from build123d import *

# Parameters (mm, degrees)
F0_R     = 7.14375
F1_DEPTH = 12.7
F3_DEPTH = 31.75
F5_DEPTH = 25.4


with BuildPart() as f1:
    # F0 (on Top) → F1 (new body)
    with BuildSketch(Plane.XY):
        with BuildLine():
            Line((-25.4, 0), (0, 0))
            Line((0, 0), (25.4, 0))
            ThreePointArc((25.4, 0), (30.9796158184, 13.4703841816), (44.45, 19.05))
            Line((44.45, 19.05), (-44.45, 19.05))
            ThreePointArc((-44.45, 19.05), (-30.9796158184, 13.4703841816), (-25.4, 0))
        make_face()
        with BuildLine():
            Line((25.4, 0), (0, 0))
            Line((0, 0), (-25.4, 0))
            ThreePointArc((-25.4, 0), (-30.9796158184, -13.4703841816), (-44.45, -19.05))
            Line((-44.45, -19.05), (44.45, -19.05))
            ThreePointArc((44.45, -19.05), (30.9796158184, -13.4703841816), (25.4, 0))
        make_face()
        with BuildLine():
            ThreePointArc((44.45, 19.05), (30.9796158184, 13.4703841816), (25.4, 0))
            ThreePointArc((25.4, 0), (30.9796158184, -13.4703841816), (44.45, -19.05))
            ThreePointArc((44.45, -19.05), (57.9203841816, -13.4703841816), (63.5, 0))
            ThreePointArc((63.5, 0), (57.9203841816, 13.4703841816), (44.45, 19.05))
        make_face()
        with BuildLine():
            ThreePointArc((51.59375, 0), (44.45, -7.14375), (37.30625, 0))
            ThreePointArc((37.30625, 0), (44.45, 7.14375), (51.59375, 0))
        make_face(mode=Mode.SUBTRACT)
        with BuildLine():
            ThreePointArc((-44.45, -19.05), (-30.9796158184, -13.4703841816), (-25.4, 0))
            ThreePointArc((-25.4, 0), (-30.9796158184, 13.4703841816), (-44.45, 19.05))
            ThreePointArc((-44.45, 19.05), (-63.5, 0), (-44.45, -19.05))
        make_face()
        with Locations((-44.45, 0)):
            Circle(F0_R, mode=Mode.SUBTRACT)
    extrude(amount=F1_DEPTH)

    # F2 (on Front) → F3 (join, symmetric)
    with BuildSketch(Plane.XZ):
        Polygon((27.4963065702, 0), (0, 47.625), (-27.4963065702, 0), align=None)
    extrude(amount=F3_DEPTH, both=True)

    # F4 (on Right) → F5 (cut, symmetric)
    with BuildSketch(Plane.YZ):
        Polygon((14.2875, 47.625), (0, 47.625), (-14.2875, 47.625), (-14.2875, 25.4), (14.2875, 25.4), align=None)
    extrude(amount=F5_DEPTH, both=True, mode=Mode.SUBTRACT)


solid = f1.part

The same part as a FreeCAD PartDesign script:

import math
import FreeCAD as App
import Part
import Sketcher

V = App.Vector
Q = App.Units.Quantity

doc = App.newDocument("Part")
params = doc.addObject("Spreadsheet::Sheet", "Params")
for row, (alias, value) in enumerate([
    ("sketch1_radius", "0.75 in"),
    ("sketch1_diameter", "0.5625 in"),
    ("sketch1_width", "3.5 in"),
    ("pad1_length", "0.5 in"),
    ("pad2_length", "2.5 in"),
    ("sketch3_width", "1.125 in"),
    ("sketch3_height", "0.875 in"),
    ("pocket1_length", "2 in"),
], start=1):
    params.set(f"A{row}", alias)
    params.set(f"B{row}", "=" + value)
    params.setAlias(f"B{row}", alias)

body = doc.addObject("PartDesign::Body", "Body")

# Sketch on XY plane
sketch1 = body.newObject("Sketcher::SketchObject", "Sketch")
sketch1.AttachmentSupport = (doc.getObject("XY_Plane"), [""])
sketch1.MapMode = "FlatFace"
sketch1.addGeometry([
    Part.LineSegment(V(44.45, 19.05, 0), V(-44.45, 19.05, 0)),  # 0
    Part.ArcOfCircle(Part.Circle(V(-44.45, 0, 0), V(0, 0, 1), 19.05), math.radians(90), math.radians(270)),  # 1
    Part.LineSegment(V(-44.45, -19.05, 0), V(44.45, -19.05, 0)),  # 2
    Part.ArcOfCircle(Part.Circle(V(44.45, 0, 0), V(0, 0, 1), 19.05), math.radians(-90), math.radians(0)),  # 3
    Part.ArcOfCircle(Part.Circle(V(44.45, 0, 0), V(0, 0, 1), 19.05), math.radians(0), math.radians(90)),  # 4
    Part.Circle(V(-44.45, 0, 0), V(0, 0, 1), 7.14375),  # 5
    Part.Circle(V(44.45, 0, 0), V(0, 0, 1), 7.14375),  # 6
], False)
sketch1.addConstraint([
    Sketcher.Constraint("Tangent", 0, 2, 1, 1),
    Sketcher.Constraint("Tangent", 1, 2, 2, 1),
    Sketcher.Constraint("Tangent", 2, 2, 3, 1),
    Sketcher.Constraint("Tangent", 3, 2, 4, 1),
    Sketcher.Constraint("Tangent", 4, 2, 0, 1),
    Sketcher.Constraint("Horizontal", 0),
    Sketcher.Constraint("Horizontal", 2),
    Sketcher.Constraint("Coincident", 5, 3, 1, 3),
    Sketcher.Constraint("Coincident", 6, 3, 3, 3),
    Sketcher.Constraint("Equal", 1, 3),
    Sketcher.Constraint("Equal", 5, 6),
    Sketcher.Constraint("Symmetric", 1, 3, 3, 3, -1, 1),
    Sketcher.Constraint("PointOnObject", 3, 2, -1),
    Sketcher.Constraint("Radius", 1, Q("0.75 in")),
    Sketcher.Constraint("Diameter", 5, Q("0.5625 in")),
    Sketcher.Constraint("DistanceX", 0, 2, 0, 1, Q("3.5 in")),
])
sketch1.setExpression("Constraints[13]", "Params.sketch1_radius")
sketch1.setExpression("Constraints[14]", "Params.sketch1_diameter")
sketch1.setExpression("Constraints[15]", "Params.sketch1_width")
pad1 = body.newObject("PartDesign::Pad", "Pad")
pad1.Profile = sketch1
pad1.setExpression("Length", "Params.pad1_length")

# Sketch on XZ plane
sketch2 = body.newObject("Sketcher::SketchObject", "Sketch001")
sketch2.AttachmentSupport = (doc.getObject("XZ_Plane"), [""])
sketch2.MapMode = "FlatFace"
sketch2.addGeometry([
    Part.LineSegment(V(27.496307, 0, 0), V(0, 47.625, 0)),
    Part.LineSegment(V(0, 47.625, 0), V(-27.496307, 0, 0)),
    Part.LineSegment(V(-27.496307, 0, 0), V(27.496307, 0, 0)),
], False)
sketch2.addConstraint([
    Sketcher.Constraint("Coincident", 0, 2, 1, 1),
    Sketcher.Constraint("Coincident", 1, 2, 2, 1),
    Sketcher.Constraint("Coincident", 2, 2, 0, 1),
    Sketcher.Constraint("Horizontal", 2),
    Sketcher.Constraint("Symmetric", 1, 2, 2, 2, -1, 1),
    Sketcher.Constraint("PointOnObject", 0, 2, -2),
    Sketcher.Constraint("Angle", 0, Q("120 deg")),
    Sketcher.Constraint("DistanceY", -1, 1, 0, 2, Q("1.875 in")),
])
pad2 = body.newObject("PartDesign::Pad", "Pad001")
pad2.Profile = sketch2
pad2.setExpression("Length", "Params.pad2_length")
pad2.Midplane = True

# Sketch on YZ plane
sketch3 = body.newObject("Sketcher::SketchObject", "Sketch002")
sketch3.AttachmentSupport = (doc.getObject("YZ_Plane"), [""])
sketch3.MapMode = "FlatFace"
sketch3.addGeometry([
    Part.LineSegment(V(14.2875, 47.625, 0), V(-14.2875, 47.625, 0)),
    Part.LineSegment(V(-14.2875, 47.625, 0), V(-14.2875, 25.4, 0)),
    Part.LineSegment(V(-14.2875, 25.4, 0), V(14.2875, 25.4, 0)),
    Part.LineSegment(V(14.2875, 25.4, 0), V(14.2875, 47.625, 0)),
], False)
sketch3.addConstraint([
    Sketcher.Constraint("Coincident", 0, 2, 1, 1),
    Sketcher.Constraint("Coincident", 1, 2, 2, 1),
    Sketcher.Constraint("Coincident", 2, 2, 3, 1),
    Sketcher.Constraint("Coincident", 3, 2, 0, 1),
    Sketcher.Constraint("Horizontal", 0),
    Sketcher.Constraint("Vertical", 1),
    Sketcher.Constraint("Horizontal", 2),
    Sketcher.Constraint("Vertical", 3),
    Sketcher.Constraint("DistanceY", -1, 1, 1, 2, Q("1 in")),
    Sketcher.Constraint("DistanceX", 0, 2, 0, 1, Q("1.125 in")),
    Sketcher.Constraint("DistanceY", 1, 2, 1, 1, Q("0.875 in")),
    Sketcher.Constraint("DistanceX", 0, 2, -1, 1, Q("0.5625 in")),
])
sketch3.setExpression("Constraints[9]", "Params.sketch3_width")
sketch3.setExpression("Constraints[10]", "Params.sketch3_height")
pocket1 = body.newObject("PartDesign::Pocket", "Pocket")
pocket1.Profile = sketch3
pocket1.setExpression("Length", "Params.pocket1_length")
pocket1.Midplane = True

doc.recompute()
